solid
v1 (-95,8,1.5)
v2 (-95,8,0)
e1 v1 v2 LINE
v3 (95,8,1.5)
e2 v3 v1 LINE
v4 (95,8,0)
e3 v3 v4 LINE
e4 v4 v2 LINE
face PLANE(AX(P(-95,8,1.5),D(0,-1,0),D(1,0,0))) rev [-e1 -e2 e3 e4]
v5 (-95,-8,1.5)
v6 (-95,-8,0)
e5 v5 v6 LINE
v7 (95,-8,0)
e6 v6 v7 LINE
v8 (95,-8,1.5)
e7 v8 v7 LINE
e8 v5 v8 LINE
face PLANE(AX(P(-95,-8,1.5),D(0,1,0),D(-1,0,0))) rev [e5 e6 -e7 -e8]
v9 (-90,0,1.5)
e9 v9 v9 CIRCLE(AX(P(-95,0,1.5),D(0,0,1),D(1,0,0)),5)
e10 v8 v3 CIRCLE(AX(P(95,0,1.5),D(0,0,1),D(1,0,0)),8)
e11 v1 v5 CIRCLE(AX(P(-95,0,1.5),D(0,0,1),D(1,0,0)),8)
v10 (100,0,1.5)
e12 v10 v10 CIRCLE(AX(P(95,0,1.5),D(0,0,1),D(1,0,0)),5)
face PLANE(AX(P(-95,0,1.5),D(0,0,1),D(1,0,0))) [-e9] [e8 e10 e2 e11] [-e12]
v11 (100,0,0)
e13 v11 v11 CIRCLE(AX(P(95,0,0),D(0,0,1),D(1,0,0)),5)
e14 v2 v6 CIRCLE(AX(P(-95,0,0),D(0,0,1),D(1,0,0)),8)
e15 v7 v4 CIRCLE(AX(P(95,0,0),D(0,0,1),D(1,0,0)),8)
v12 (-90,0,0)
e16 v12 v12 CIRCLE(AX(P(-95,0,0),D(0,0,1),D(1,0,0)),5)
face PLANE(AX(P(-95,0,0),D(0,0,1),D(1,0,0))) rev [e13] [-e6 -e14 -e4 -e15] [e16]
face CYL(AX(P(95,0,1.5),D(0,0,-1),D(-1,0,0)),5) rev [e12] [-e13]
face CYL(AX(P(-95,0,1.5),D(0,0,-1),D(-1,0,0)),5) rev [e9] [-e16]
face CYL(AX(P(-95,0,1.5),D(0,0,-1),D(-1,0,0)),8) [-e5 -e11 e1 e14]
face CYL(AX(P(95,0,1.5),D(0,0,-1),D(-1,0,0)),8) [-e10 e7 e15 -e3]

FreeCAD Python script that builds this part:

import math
import FreeCAD as App
import Part
import Sketcher
from FreeCAD import Vector

doc = App.newDocument("Part")
body = doc.addObject("PartDesign::Body", "Body")

sketch1 = doc.addObject("Sketcher::SketchObject", "Sketch")
body.addObject(sketch1)
sketch1.AttachmentSupport = (doc.XY_Plane, [""])
sketch1.MapMode = "FlatFace"
sketch1.addGeometry(Part.LineSegment(Vector(95, 8, 0), Vector(-95, 8, 0)), False)
sketch1.addGeometry(Part.ArcOfCircle(Part.Circle(Vector(-95, 0, 0), Vector(0, 0, 1), 8), math.radians(90), math.radians(270)), False)
sketch1.addGeometry(Part.LineSegment(Vector(-95, -8, 0), Vector(95, -8, 0)), False)
sketch1.addGeometry(Part.ArcOfCircle(Part.Circle(Vector(95, 0, 0), Vector(0, 0, 1), 8), math.radians(-90), math.radians(90)), False)
sketch1.addGeometry(Part.Circle(Vector(95, 0, 0), Vector(0, 0, 1), 5), False)
sketch1.addGeometry(Part.Circle(Vector(-95, 0, 0), Vector(0, 0, 1), 5), False)
sketch1.addConstraint(Sketcher.Constraint("Tangent", 0, 2, 1, 1))
sketch1.addConstraint(Sketcher.Constraint("Tangent", 1, 2, 2, 1))
sketch1.addConstraint(Sketcher.Constraint("Tangent", 2, 2, 3, 1))
sketch1.addConstraint(Sketcher.Constraint("Tangent", 3, 2, 0, 1))
sketch1.addConstraint(Sketcher.Constraint("Horizontal", 0))
sketch1.addConstraint(Sketcher.Constraint("Horizontal", 2))
sketch1.addConstraint(Sketcher.Constraint("Coincident", 4, 3, 3, 3))
sketch1.addConstraint(Sketcher.Constraint("Coincident", 5, 3, 1, 3))
sketch1.addConstraint(Sketcher.Constraint("Equal", 4, 5))
sketch1.addConstraint(Sketcher.Constraint("Symmetric", 1, 3, 3, 3, -1, 1))
sketch1.addConstraint(Sketcher.Constraint("Diameter", 4, 10.0))
sketch1.addConstraint(Sketcher.Constraint("Radius", 1, 8.0))
sketch1.addConstraint(Sketcher.Constraint("DistanceX", 0, 2, 0, 1, 190.0))
pad1 = doc.addObject("PartDesign::Pad", "Pad")
body.addObject(pad1)
pad1.Profile = sketch1
pad1.Length = 1.5

doc.recompute()
